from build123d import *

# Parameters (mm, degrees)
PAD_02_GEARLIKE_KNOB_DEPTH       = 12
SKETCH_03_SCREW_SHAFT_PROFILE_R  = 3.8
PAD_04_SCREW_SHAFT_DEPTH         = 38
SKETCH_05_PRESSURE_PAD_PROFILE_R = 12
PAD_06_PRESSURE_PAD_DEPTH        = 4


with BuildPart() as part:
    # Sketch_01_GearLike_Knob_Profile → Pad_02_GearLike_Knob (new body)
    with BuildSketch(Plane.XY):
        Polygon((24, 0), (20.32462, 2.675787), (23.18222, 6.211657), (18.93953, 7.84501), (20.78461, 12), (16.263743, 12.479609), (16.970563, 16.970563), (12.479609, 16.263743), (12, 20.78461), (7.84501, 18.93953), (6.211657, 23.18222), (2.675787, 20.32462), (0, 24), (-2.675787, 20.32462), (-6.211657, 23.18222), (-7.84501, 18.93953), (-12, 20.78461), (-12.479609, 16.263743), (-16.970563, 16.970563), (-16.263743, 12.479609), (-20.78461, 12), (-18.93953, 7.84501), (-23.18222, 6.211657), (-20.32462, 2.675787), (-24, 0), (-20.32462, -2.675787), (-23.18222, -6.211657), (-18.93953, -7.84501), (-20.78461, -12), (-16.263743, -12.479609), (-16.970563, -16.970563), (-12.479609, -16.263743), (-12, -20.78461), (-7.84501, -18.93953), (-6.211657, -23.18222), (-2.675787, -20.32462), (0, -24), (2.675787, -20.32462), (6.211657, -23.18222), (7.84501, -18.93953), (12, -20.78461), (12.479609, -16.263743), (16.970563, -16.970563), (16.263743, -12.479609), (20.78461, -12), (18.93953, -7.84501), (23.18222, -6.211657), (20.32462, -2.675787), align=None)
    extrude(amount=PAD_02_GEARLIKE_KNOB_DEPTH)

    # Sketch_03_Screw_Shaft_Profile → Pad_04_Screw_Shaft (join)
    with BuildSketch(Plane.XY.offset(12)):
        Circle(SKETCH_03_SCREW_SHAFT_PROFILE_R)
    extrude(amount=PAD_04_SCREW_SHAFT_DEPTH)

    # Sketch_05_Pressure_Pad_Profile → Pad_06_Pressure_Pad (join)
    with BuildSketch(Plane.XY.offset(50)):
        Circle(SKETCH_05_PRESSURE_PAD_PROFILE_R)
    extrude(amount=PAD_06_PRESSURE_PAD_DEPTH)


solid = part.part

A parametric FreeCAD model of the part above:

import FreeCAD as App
import Part
import Sketcher

doc = App.newDocument("Part")
params = doc.addObject("Spreadsheet::Sheet", "Params")
for row, (alias, value) in enumerate([
    ("pad1_length", "12 mm"),
    ("sketch2_diameter", "7.6 mm"),
    ("pad2_length", "38 mm"),
    ("sketch3_diameter", "24 mm"),
    ("pad3_length", "4 mm"),
], start=1):
    params.set(f"A{row}", alias)
    params.set(f"B{row}", "=" + value)
    params.setAlias(f"B{row}", alias)

body = doc.addObject("PartDesign::Body", "Body")

sketch1 = body.newObject("Sketcher::SketchObject", "Sketch")
sketch1.AttachmentSupport = (doc.getObject("XY_Plane"), [""])
sketch1.MapMode = "FlatFace"
sketch1.addGeometry(Part.LineSegment(App.Vector(24, 0, 0), App.Vector(20.3, 2.7, 0)), False)
sketch1.addGeometry(Part.LineSegment(App.Vector(20.3, 2.7, 0), App.Vector(23.2, 6.2, 0)), False)
sketch1.addGeometry(Part.LineSegment(App.Vector(23.2, 6.2, 0), App.Vector(18.9, 7.8, 0)), False)
sketch1.addGeometry(Part.LineSegment(App.Vector(18.9, 7.8, 0), App.Vector(20.8, 12, 0)), False)
sketch1.addGeometry(Part.LineSegment(App.Vector(20.8, 12, 0), App.Vector(16.3, 12.5, 0)), False)
sketch1.addGeometry(Part.LineSegment(App.Vector(16.3, 12.5, 0), App.Vector(17, 17, 0)), False)
sketch1.addGeometry(Part.LineSegment(App.Vector(17, 17, 0), App.Vector(12.5, 16.3, 0)), False)
sketch1.addGeometry(Part.LineSegment(App.Vector(12.5, 16.3, 0), App.Vector(12, 20.8, 0)), False)
sketch1.addGeometry(Part.LineSegment(App.Vector(12, 20.8, 0), App.Vector(7.8, 18.9, 0)), False)
sketch1.addGeometry(Part.LineSegment(App.Vector(7.8, 18.9, 0), App.Vector(6.2, 23.2, 0)), False)
sketch1.addGeometry(Part.LineSegment(App.Vector(6.2, 23.2, 0), App.Vector(2.7, 20.3, 0)), False)
sketch1.addGeometry(Part.LineSegment(App.Vector(2.7, 20.3, 0), App.Vector(0, 24, 0)), False)
sketch1.addGeometry(Part.LineSegment(App.Vector(0, 24, 0), App.Vector(-2.7, 20.3, 0)), False)
sketch1.addGeometry(Part.LineSegment(App.Vector(-2.7, 20.3, 0), App.Vector(-6.2, 23.2, 0)), False)
sketch1.addGeometry(Part.LineSegment(App.Vector(-6.2, 23.2, 0), App.Vector(-7.8, 18.9, 0)), False)
sketch1.addGeometry(Part.LineSegment(App.Vector(-7.8, 18.9, 0), App.Vector(-12, 20.8, 0)), False)
sketch1.addGeometry(Part.LineSegment(App.Vector(-12, 20.8, 0), App.Vector(-12.5, 16.3, 0)), False)
sketch1.addGeometry(Part.LineSegment(App.Vector(-12.5, 16.3, 0), App.Vector(-17, 17, 0)), False)
sketch1.addGeometry(Part.LineSegment(App.Vector(-17, 17, 0), App.Vector(-16.3, 12.5, 0)), False)
sketch1.addGeometry(Part.LineSegment(App.Vector(-16.3, 12.5, 0), App.Vector(-20.8, 12, 0)), False)
sketch1.addGeometry(Part.LineSegment(App.Vector(-20.8, 12, 0), App.Vector(-18.9, 7.8, 0)), False)
sketch1.addGeometry(Part.LineSegment(App.Vector(-18.9, 7.8, 0), App.Vector(-23.2, 6.2, 0)), False)
sketch1.addGeometry(Part.LineSegment(App.Vector(-23.2, 6.2, 0), App.Vector(-20.3, 2.7, 0)), False)
sketch1.addGeometry(Part.LineSegment(App.Vector(-20.3, 2.7, 0), App.Vector(-24, 0, 0)), False)
sketch1.addGeometry(Part.LineSegment(App.Vector(-24, 0, 0), App.Vector(-20.3, -2.7, 0)), False)
sketch1.addGeometry(Part.LineSegment(App.Vector(-20.3, -2.7, 0), App.Vector(-23.2, -6.2, 0)), False)
sketch1.addGeometry(Part.LineSegment(App.Vector(-23.2, -6.2, 0), App.Vector(-18.9, -7.8, 0)), False)
sketch1.addGeometry(Part.LineSegment(App.Vector(-18.9, -7.8, 0), App.Vector(-20.8, -12, 0)), False)
sketch1.addGeometry(Part.LineSegment(App.Vector(-20.8, -12, 0), App.Vector(-16.3, -12.5, 0)), False)
sketch1.addGeometry(Part.LineSegment(App.Vector(-16.3, -12.5, 0), App.Vector(-17, -17, 0)), False)
sketch1.addGeometry(Part.LineSegment(App.Vector(-17, -17, 0), App.Vector(-12.5, -16.3, 0)), False)
sketch1.addGeometry(Part.LineSegment(App.Vector(-12.5, -16.3, 0), App.Vector(-12, -20.8, 0)), False)
sketch1.addGeometry(Part.LineSegment(App.Vector(-12, -20.8, 0), App.Vector(-7.8, -18.9, 0)), False)
sketch1.addGeometry(Part.LineSegment(App.Vector(-7.8, -18.9, 0), App.Vector(-6.2, -23.2, 0)), False)
sketch1.addGeometry(Part.LineSegment(App.Vector(-6.2, -23.2, 0), App.Vector(-2.7, -20.3, 0)), False)
sketch1.addGeometry(Part.LineSegment(App.Vector(-2.7, -20.3, 0), App.Vector(0, -24, 0)), False)
sketch1.addGeometry(Part.LineSegment(App.Vector(0, -24, 0), App.Vector(2.7, -20.3, 0)), False)
sketch1.addGeometry(Part.LineSegment(App.Vector(2.7, -20.3, 0), App.Vector(6.2, -23.2, 0)), False)
sketch1.addGeometry(Part.LineSegment(App.Vector(6.2, -23.2, 0), App.Vector(7.8, -18.9, 0)), False)
sketch1.addGeometry(Part.LineSegment(App.Vector(7.8, -18.9, 0), App.Vector(12, -20.8, 0)), False)
sketch1.addGeometry(Part.LineSegment(App.Vector(12, -20.8, 0), App.Vector(12.5, -16.3, 0)), False)
sketch1.addGeometry(Part.LineSegment(App.Vector(12.5, -16.3, 0), App.Vector(17, -17, 0)), False)
sketch1.addGeometry(Part.LineSegment(App.Vector(17, -17, 0), App.Vector(16.3, -12.5, 0)), False)
sketch1.addGeometry(Part.LineSegment(App.Vector(16.3, -12.5, 0), App.Vector(20.8, -12, 0)), False)
sketch1.addGeometry(Part.LineSegment(App.Vector(20.8, -12, 0), App.Vector(18.9, -7.8, 0)), False)
sketch1.addGeometry(Part.LineSegment(App.Vector(18.9, -7.8, 0), App.Vector(23.2, -6.2, 0)), False)
sketch1.addGeometry(Part.LineSegment(App.Vector(23.2, -6.2, 0), App.Vector(20.3, -2.7, 0)), False)
sketch1.addGeometry(Part.LineSegment(App.Vector(20.3, -2.7, 0), App.Vector(24, 0, 0)), False)
sketch1.addConstraint(Sketcher.Constraint("Coincident", 0, 2, 1, 1))
sketch1.addConstraint(Sketcher.Constraint("Coincident", 1, 2, 2, 1))
sketch1.addConstraint(Sketcher.Constraint("Coincident", 2, 2, 3, 1))
sketch1.addConstraint(Sketcher.Constraint("Coincident", 3, 2, 4, 1))
sketch1.addConstraint(Sketcher.Constraint("Coincident", 4, 2, 5, 1))
sketch1.addConstraint(Sketcher.Constraint("Coincident", 5, 2, 6, 1))
sketch1.addConstraint(Sketcher.Constraint("Coincident", 6, 2, 7, 1))
sketch1.addConstraint(Sketcher.Constraint("Coincident", 7, 2, 8, 1))
sketch1.addConstraint(Sketcher.Constraint("Coincident", 8, 2, 9, 1))
sketch1.addConstraint(Sketcher.Constraint("Coincident", 9, 2, 10, 1))
sketch1.addConstraint(Sketcher.Constraint("Coincident", 10, 2, 11, 1))
sketch1.addConstraint(Sketcher.Constraint("Coincident", 11, 2, 12, 1))
sketch1.addConstraint(Sketcher.Constraint("Coincident", 12, 2, 13, 1))
sketch1.addConstraint(Sketcher.Constraint("Coincident", 13, 2, 14, 1))
sketch1.addConstraint(Sketcher.Constraint("Coincident", 14, 2, 15, 1))
sketch1.addConstraint(Sketcher.Constraint("Coincident", 15, 2, 16, 1))
sketch1.addConstraint(Sketcher.Constraint("Coincident", 16, 2, 17, 1))
sketch1.addConstraint(Sketcher.Constraint("Coincident", 17, 2, 18, 1))
sketch1.addConstraint(Sketcher.Constraint("Coincident", 18, 2, 19, 1))
sketch1.addConstraint(Sketcher.Constraint("Coincident", 19, 2, 20, 1))
sketch1.addConstraint(Sketcher.Constraint("Coincident", 20, 2, 21, 1))
sketch1.addConstraint(Sketcher.Constraint("Coincident", 21, 2, 22, 1))
sketch1.addConstraint(Sketcher.Constraint("Coincident", 22, 2, 23, 1))
sketch1.addConstraint(Sketcher.Constraint("Coincident", 23, 2, 24, 1))
sketch1.addConstraint(Sketcher.Constraint("Coincident", 24, 2, 25, 1))
sketch1.addConstraint(Sketcher.Constraint("Coincident", 25, 2, 26, 1))
sketch1.addConstraint(Sketcher.Constraint("Coincident", 26, 2, 27, 1))
sketch1.addConstraint(Sketcher.Constraint("Coincident", 27, 2, 28, 1))
sketch1.addConstraint(Sketcher.Constraint("Coincident", 28, 2, 29, 1))
sketch1.addConstraint(Sketcher.Constraint("Coincident", 29, 2, 30, 1))
sketch1.addConstraint(Sketcher.Constraint("Coincident", 30, 2, 31, 1))
sketch1.addConstraint(Sketcher.Constraint("Coincident", 31, 2, 32, 1))
sketch1.addConstraint(Sketcher.Constraint("Coincident", 32, 2, 33, 1))
sketch1.addConstraint(Sketcher.Constraint("Coincident", 33, 2, 34, 1))
sketch1.addConstraint(Sketcher.Constraint("Coincident", 34, 2, 35, 1))
sketch1.addConstraint(Sketcher.Constraint("Coincident", 35, 2, 36, 1))
sketch1.addConstraint(Sketcher.Constraint("Coincident", 36, 2, 37, 1))
sketch1.addConstraint(Sketcher.Constraint("Coincident", 37, 2, 38, 1))
sketch1.addConstraint(Sketcher.Constraint("Coincident", 38, 2, 39, 1))
sketch1.addConstraint(Sketcher.Constraint("Coincident", 39, 2, 40, 1))
sketch1.addConstraint(Sketcher.Constraint("Coincident", 40, 2, 41, 1))
sketch1.addConstraint(Sketcher.Constraint("Coincident", 41, 2, 42, 1))
sketch1.addConstraint(Sketcher.Constraint("Coincident", 42, 2, 43, 1))
sketch1.addConstraint(Sketcher.Constraint("Coincident", 43, 2, 44, 1))
sketch1.addConstraint(Sketcher.Constraint("Coincident", 44, 2, 45, 1))
sketch1.addConstraint(Sketcher.Constraint("Coincident", 45, 2, 46, 1))
sketch1.addConstraint(Sketcher.Constraint("Coincident", 46, 2, 47, 1))
sketch1.addConstraint(Sketcher.Constraint("Coincident", 47, 2, 0, 1))
sketch1.addConstraint(Sketcher.Constraint("Symmetric", 0, 2, 24, 2, -1, 1))
sketch1.addConstraint(Sketcher.Constraint("Symmetric", 1, 2, 25, 2, -1, 1))
sketch1.addConstraint(Sketcher.Constraint("Symmetric", 2, 2, 26, 2, -1, 1))
sketch1.addConstraint(Sketcher.Constraint("Symmetric", 3, 2, 27, 2, -1, 1))
sketch1.addConstraint(Sketcher.Constraint("Symmetric", 4, 2, 28, 2, -1, 1))
sketch1.addConstraint(Sketcher.Constraint("Symmetric", 5, 2, 29, 2, -1, 1))
sketch1.addConstraint(Sketcher.Constraint("Symmetric", 6, 2, 30, 2, -1, 1))
sketch1.addConstraint(Sketcher.Constraint("Symmetric", 7, 2, 31, 2, -1, 1))
sketch1.addConstraint(Sketcher.Constraint("Symmetric", 8, 2, 32, 2, -1, 1))
sketch1.addConstraint(Sketcher.Constraint("Symmetric", 9, 2, 33, 2, -1, 1))
sketch1.addConstraint(Sketcher.Constraint("Symmetric", 10, 2, 34, 2, -1, 1))
sketch1.addConstraint(Sketcher.Constraint("Symmetric", 11, 2, 35, 2, -1, 1))
sketch1.addConstraint(Sketcher.Constraint("Symmetric", 12, 2, 36, 2, -1, 1))
sketch1.addConstraint(Sketcher.Constraint("Symmetric", 13, 2, 37, 2, -1, 1))
sketch1.addConstraint(Sketcher.Constraint("Symmetric", 14, 2, 38, 2, -1, 1))
sketch1.addConstraint(Sketcher.Constraint("Symmetric", 15, 2, 39, 2, -1, 1))
sketch1.addConstraint(Sketcher.Constraint("Symmetric", 16, 2, 40, 2, -1, 1))
sketch1.addConstraint(Sketcher.Constraint("Symmetric", 17, 2, 41, 2, -1, 1))
sketch1.addConstraint(Sketcher.Constraint("Symmetric", 18, 2, 42, 2, -1, 1))
sketch1.addConstraint(Sketcher.Constraint("Symmetric", 19, 2, 43, 2, -1, 1))
sketch1.addConstraint(Sketcher.Constraint("Symmetric", 20, 2, 44, 2, -1, 1))
sketch1.addConstraint(Sketcher.Constraint("Symmetric", 21, 2, 45, 2, -1, 1))
sketch1.addConstraint(Sketcher.Constraint("Symmetric", 22, 2, 46, 2, -1, 1))
sketch1.addConstraint(Sketcher.Constraint("Symmetric", 23, 2, 47, 2, -1, 1))
sketch1.addConstraint(Sketcher.Constraint("Symmetric", 10, 2, 12, 2, -2))
sketch1.addConstraint(Sketcher.Constraint("Symmetric", 9, 2, 13, 2, -2))
sketch1.addConstraint(Sketcher.Constraint("Symmetric", 8, 2, 14, 2, -2))
sketch1.addConstraint(Sketcher.Constraint("Symmetric", 7, 2, 15, 2, -2))
sketch1.addConstraint(Sketcher.Constraint("Symmetric", 6, 2, 16, 2, -2))
sketch1.addConstraint(Sketcher.Constraint("Symmetric", 5, 2, 17, 2, -2))
sketch1.addConstraint(Sketcher.Constraint("Symmetric", 4, 2, 18, 2, -2))
sketch1.addConstraint(Sketcher.Constraint("Symmetric", 3, 2, 19, 2, -2))
sketch1.addConstraint(Sketcher.Constraint("Symmetric", 2, 2, 20, 2, -2))
sketch1.addConstraint(Sketcher.Constraint("Symmetric", 1, 2, 21, 2, -2))
sketch1.addConstraint(Sketcher.Constraint("Symmetric", 0, 2, 22, 2, -2))
sketch1.addConstraint(Sketcher.Constraint("PointOnObject", 11, 2, -2))
sketch1.addConstraint(Sketcher.Constraint("PointOnObject", 23, 2, -1))
sketch1.addConstraint(Sketcher.Constraint("Perpendicular", 0, 12))
sketch1.addConstraint(Sketcher.Constraint("Perpendicular", 1, 13))
sketch1.addConstraint(Sketcher.Constraint("Perpendicular", 2, 14))
sketch1.addConstraint(Sketcher.Constraint("Perpendicular", 3, 15))
sketch1.addConstraint(Sketcher.Constraint("Perpendicular", 4, 16))
sketch1.addConstraint(Sketcher.Constraint("Perpendicular", 5, 17))
sketch1.addConstraint(Sketcher.Constraint("Equal", 0, 1))
sketch1.addConstraint(Sketcher.Constraint("Equal", 1, 2))
sketch1.addConstraint(Sketcher.Constraint("Equal", 2, 3))
sketch1.addConstraint(Sketcher.Constraint("Equal", 3, 4))
sketch1.addConstraint(Sketcher.Constraint("Equal", 4, 5))
sketch1.addConstraint(Sketcher.Constraint("Equal", 5, 6))
sketch1.addConstraint(Sketcher.Constraint("Equal", 6, 7))
sketch1.addConstraint(Sketcher.Constraint("Equal", 7, 8))
sketch1.addConstraint(Sketcher.Constraint("Equal", 8, 9))
sketch1.addConstraint(Sketcher.Constraint("Equal", 9, 10))
sketch1.addConstraint(Sketcher.Constraint("Equal", 10, 11))
sketch1.addConstraint(Sketcher.Constraint("DistanceY", -1, 1, 3, 2, 12.0))
sketch1.addConstraint(Sketcher.Constraint("DistanceY", -1, 1, 11, 2, 24.0))
sketch1.addConstraint(Sketcher.Constraint("DistanceX", 6, 2, 3, 2, 8.305001))
sketch1.addConstraint(Sketcher.Constraint("DistanceX", 0, 2, 1, 2, 2.8576))
sketch1.addConstraint(Sketcher.Constraint("DistanceY", 2, 2, 4, 2, 4.634599))
sketch1.addConstraint(Sketcher.Constraint("DistanceX", -1, 1, 0, 2, 20.32462))
sketch1.addConstraint(Sketcher.Constraint("DistanceX", -1, 1, 2, 2, 18.93953))
pad1 = body.newObject("PartDesign::Pad", "Pad")
pad1.Profile = sketch1
pad1.setExpression("Length", "Params.pad1_length")

sketch2 = body.newObject("Sketcher::SketchObject", "Sketch001")
sketch2.AttachmentSupport = (doc.getObject("XY_Plane"), [""])
sketch2.MapMode = "FlatFace"
sketch2.AttachmentOffset = App.Placement(App.Vector(0, 0, 12), App.Rotation())
sketch2.addGeometry(Part.Circle(App.Vector(0, 0, 0), App.Vector(0, 0, 1), 3.8), False)
sketch2.addConstraint(Sketcher.Constraint("Coincident", 0, 3, -1, 1))
sketch2.addConstraint(Sketcher.Constraint("Diameter", 0, 7.6))
sketch2.setExpression("Constraints[1]", "Params.sketch2_diameter")
pad2 = body.newObject("PartDesign::Pad", "Pad001")
pad2.Profile = sketch2
pad2.setExpression("Length", "Params.pad2_length")

sketch3 = body.newObject("Sketcher::SketchObject", "Sketch002")
sketch3.AttachmentSupport = (doc.getObject("XY_Plane"), [""])
sketch3.MapMode = "FlatFace"
sketch3.AttachmentOffset = App.Placement(App.Vector(0, 0, 50), App.Rotation())
sketch3.addGeometry(Part.Circle(App.Vector(0, 0, 0), App.Vector(0, 0, 1), 12), False)
sketch3.addConstraint(Sketcher.Constraint("Coincident", 0, 3, -1, 1))
sketch3.addConstraint(Sketcher.Constraint("Diameter", 0, 24.0))
sketch3.setExpression("Constraints[1]", "Params.sketch3_diameter")
pad3 = body.newObject("PartDesign::Pad", "Pad002")
pad3.Profile = sketch3
pad3.setExpression("Length", "Params.pad3_length")

doc.recompute()
